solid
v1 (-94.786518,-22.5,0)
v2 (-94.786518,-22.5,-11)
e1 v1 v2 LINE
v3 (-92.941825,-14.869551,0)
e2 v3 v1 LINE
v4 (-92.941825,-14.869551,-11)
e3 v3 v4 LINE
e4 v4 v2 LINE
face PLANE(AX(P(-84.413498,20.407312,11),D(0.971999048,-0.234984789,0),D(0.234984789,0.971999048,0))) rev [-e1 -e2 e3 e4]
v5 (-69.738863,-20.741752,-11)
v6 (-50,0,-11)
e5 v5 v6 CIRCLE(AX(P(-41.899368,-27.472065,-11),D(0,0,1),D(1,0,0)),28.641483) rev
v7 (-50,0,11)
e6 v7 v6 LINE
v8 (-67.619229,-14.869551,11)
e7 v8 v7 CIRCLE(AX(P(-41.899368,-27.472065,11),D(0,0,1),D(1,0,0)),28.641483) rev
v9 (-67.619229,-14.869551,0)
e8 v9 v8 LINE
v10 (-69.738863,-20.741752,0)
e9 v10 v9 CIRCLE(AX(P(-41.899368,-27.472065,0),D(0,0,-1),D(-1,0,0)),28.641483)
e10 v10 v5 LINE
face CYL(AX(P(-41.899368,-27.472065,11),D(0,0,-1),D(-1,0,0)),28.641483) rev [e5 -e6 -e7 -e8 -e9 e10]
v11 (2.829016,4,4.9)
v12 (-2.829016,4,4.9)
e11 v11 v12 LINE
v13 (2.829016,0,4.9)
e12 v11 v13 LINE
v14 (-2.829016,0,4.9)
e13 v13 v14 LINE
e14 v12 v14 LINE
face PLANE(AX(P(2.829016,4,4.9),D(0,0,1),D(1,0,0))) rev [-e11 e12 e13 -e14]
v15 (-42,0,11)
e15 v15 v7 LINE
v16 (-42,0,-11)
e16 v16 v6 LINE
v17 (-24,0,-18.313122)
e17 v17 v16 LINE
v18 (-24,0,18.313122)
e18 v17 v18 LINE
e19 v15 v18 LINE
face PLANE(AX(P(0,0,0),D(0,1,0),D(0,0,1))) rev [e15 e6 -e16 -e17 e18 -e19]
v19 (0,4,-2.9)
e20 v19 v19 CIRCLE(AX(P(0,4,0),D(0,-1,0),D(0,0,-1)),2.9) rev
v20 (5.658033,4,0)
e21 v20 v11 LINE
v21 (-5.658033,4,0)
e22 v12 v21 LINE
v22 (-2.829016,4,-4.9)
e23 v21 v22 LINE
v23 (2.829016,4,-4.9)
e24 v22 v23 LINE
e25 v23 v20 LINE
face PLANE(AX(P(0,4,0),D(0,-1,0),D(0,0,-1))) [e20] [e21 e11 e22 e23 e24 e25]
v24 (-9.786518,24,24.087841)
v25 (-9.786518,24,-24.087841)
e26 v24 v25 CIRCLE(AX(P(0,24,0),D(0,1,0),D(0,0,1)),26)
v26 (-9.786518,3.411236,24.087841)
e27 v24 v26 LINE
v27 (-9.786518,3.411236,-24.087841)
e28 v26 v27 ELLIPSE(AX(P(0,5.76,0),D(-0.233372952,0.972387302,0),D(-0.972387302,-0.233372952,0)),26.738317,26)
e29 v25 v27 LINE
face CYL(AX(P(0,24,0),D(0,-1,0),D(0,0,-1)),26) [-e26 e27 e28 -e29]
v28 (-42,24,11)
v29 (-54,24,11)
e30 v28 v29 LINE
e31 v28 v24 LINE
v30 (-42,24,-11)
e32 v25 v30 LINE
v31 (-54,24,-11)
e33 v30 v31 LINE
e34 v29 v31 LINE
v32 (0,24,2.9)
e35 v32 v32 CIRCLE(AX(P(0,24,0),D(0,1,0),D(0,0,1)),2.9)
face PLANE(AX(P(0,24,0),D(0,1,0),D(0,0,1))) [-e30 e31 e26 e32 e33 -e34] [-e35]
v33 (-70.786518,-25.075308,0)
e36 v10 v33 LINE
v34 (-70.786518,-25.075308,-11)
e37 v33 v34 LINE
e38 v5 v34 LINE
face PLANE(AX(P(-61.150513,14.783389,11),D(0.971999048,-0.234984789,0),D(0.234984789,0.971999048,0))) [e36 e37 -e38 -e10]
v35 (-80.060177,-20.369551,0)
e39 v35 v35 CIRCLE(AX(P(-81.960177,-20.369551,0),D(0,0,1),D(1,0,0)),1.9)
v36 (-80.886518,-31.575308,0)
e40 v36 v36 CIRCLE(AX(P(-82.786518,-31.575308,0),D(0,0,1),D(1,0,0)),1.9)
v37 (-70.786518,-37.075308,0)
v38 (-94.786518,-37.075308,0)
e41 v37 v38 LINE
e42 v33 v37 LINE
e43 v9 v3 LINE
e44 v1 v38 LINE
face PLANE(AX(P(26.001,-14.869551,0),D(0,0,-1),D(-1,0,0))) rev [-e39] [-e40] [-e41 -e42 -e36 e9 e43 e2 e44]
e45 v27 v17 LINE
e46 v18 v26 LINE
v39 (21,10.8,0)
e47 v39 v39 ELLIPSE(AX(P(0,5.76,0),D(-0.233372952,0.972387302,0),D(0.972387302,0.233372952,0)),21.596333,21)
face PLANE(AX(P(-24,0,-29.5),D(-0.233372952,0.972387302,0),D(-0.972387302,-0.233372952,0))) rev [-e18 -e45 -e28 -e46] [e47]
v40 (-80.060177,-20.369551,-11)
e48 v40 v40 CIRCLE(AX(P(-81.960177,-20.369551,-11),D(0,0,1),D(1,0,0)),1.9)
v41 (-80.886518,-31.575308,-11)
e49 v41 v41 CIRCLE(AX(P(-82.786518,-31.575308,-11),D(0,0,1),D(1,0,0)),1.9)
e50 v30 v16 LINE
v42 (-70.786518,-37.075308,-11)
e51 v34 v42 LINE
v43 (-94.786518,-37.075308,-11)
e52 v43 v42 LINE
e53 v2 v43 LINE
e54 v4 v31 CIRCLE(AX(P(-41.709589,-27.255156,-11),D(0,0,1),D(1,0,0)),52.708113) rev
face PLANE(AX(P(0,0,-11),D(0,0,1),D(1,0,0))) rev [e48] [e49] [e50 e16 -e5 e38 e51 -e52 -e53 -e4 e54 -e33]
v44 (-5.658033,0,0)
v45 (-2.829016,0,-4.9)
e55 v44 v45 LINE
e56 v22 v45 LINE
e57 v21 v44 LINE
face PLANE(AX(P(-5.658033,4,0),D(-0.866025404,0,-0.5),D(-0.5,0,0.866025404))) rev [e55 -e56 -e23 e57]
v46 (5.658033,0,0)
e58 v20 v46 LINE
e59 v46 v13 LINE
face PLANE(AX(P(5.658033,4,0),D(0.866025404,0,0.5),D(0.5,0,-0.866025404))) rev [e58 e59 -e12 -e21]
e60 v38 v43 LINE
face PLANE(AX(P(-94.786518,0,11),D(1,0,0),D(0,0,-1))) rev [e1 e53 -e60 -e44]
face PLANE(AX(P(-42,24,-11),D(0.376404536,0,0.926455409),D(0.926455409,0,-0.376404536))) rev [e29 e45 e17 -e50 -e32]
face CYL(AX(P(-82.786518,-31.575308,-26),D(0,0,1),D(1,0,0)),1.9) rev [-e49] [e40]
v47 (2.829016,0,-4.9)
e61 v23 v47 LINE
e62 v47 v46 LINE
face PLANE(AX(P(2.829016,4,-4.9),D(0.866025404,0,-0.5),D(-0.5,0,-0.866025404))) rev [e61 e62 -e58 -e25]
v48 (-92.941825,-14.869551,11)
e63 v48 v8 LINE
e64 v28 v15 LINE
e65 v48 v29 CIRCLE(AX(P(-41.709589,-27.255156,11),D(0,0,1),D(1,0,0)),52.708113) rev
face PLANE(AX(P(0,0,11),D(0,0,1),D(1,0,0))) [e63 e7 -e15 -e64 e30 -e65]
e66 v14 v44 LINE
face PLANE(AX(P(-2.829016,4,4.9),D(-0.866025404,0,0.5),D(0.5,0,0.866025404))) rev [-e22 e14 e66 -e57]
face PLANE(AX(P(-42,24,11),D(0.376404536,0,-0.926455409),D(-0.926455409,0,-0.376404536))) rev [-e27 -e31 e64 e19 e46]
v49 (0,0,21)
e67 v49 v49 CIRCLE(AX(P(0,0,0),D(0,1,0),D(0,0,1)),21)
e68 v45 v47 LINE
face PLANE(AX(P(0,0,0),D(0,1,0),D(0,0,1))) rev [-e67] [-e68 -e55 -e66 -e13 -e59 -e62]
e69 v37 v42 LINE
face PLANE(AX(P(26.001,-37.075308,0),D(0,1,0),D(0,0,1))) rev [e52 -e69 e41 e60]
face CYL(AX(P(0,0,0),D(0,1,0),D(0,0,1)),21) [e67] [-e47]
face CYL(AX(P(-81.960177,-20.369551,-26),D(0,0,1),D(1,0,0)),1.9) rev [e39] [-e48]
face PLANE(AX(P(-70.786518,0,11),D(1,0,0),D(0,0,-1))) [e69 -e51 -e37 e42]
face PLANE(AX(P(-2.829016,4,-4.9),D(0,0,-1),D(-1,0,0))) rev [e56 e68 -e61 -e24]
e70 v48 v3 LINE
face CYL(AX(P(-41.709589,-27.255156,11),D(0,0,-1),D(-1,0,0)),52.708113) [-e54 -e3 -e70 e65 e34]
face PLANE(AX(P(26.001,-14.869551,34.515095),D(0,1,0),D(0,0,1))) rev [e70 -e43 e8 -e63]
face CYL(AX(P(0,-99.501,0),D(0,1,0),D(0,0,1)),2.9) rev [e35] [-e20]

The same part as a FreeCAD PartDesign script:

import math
import FreeCAD as App
import Part
import Sketcher
Q = App.Units.Quantity


def add_polygon(sketch, points):
    """Adds a closed chain of lines whose ends are joined by coincident constraints."""
    first, n = sketch.GeometryCount, len(points)
    for a, b in zip(points, points[1:] + points[:1]):
        sketch.addGeometry(Part.LineSegment(App.Vector(*a, 0), App.Vector(*b, 0)), False)
    for i in range(n):
        sketch.addConstraint(Sketcher.Constraint("Coincident", first + i, 2, first + (i + 1) % n, 1))

doc = App.newDocument("Part")
body = doc.addObject("PartDesign::Body", "Body")

sketch1 = body.newObject("Sketcher::SketchObject", "Sketch")
sketch1.AttachmentSupport = (doc.getObject("XZ_Plane"), [""])
sketch1.MapMode = "FlatFace"
sketch1.addGeometry([
    Part.LineSegment(App.Vector(-9.786518, -24.087841, 0), App.Vector(-42, -11, 0)),
    Part.LineSegment(App.Vector(-42, -11, 0), App.Vector(-42, 11, 0)),
    Part.LineSegment(App.Vector(-42, 11, 0), App.Vector(-9.786518, 24.087841, 0)),
    Part.ArcOfCircle(Part.Circle(App.Vector(0, 0, 0), App.Vector(0, 0, 1), 26), math.radians(-112.111148), math.radians(112.111148)),
], False)
sketch1.addConstraint([
    Sketcher.Constraint("Coincident", 0, 2, 1, 1),
    Sketcher.Constraint("Coincident", 1, 2, 2, 1),
    Sketcher.Constraint("Tangent", 2, 2, 3, 2),
    Sketcher.Constraint("Tangent", 3, 1, 0, 1),
    Sketcher.Constraint("Vertical", 1),
    Sketcher.Constraint("Coincident", 3, 3, -1, 1),
    Sketcher.Constraint("Vertical", 2, 2, 3, 1),
    Sketcher.Constraint("Radius", 3, Q("26 mm")),
    Sketcher.Constraint("DistanceY", 1, 1, 1, 2, Q("22 mm")),
    Sketcher.Constraint("DistanceX", 0, 2, -1, 1, Q("42 mm")),
])
pad1 = body.newObject("PartDesign::Pad", "Pad")
pad1.Profile = sketch1
pad1.Length = 24
pad1.Reversed = True

sketch2 = body.newObject("Sketcher::SketchObject", "Sketch001")
sketch2.AttachmentSupport = (doc.getObject("XY_Plane"), [""])
sketch2.MapMode = "FlatFace"
add_polygon(sketch2, [(26, 12), (-24, 0), (26, 0)])
sketch2.addConstraint([
    Sketcher.Constraint("Horizontal", 1),
    Sketcher.Constraint("Vertical", 2),
    Sketcher.Constraint("PointOnObject", 0, 2, -1),
    Sketcher.Constraint("DistanceX", 1, 1, 1, 2, Q("50 mm")),
    Sketcher.Constraint("DistanceY", 2, 1, 2, 2, Q("12 mm")),
    Sketcher.Constraint("DistanceX", 0, 2, -1, 1, Q("24 mm")),
])
pocket1 = body.newObject("PartDesign::Pocket", "Pocket")
pocket1.Profile = sketch2
pocket1.Length = 59
pocket1.Midplane = True

sketch3 = body.newObject("Sketcher::SketchObject", "Sketch002")
sketch3.AttachmentSupport = (doc.getObject("XZ_Plane"), [""])
sketch3.MapMode = "FlatFace"
sketch3.AttachmentOffset = App.Placement(App.Vector(0, 0, -24), App.Rotation())
sketch3.addGeometry(Part.Circle(App.Vector(0, 0, 0), App.Vector(0, 0, 1), 21), False)
sketch3.addConstraint([
    Sketcher.Constraint("Coincident", 0, 3, -1, 1),
    Sketcher.Constraint("Diameter", 0, Q("42 mm")),
])
pad2 = body.newObject("PartDesign::Pad", "Pad001")
pad2.Profile = sketch3
pad2.Length = 24

sketch4 = body.newObject("Sketcher::SketchObject", "Sketch003")
sketch4.AttachmentSupport = (doc.getObject("XZ_Plane"), [""])
sketch4.MapMode = "FlatFace"
add_polygon(sketch4, [(2.829016, 4.9), (-2.829016, 4.9), (-5.658033, 0), (-2.829016, -4.9), (2.829016, -4.9), (5.658033, 0)])
sketch4.addConstraint([
    Sketcher.Constraint("Horizontal", 0),
    Sketcher.Constraint("Horizontal", 3),
    Sketcher.Constraint("Symmetric", 0, 2, 3, 2, -1, 1),
    Sketcher.Constraint("Symmetric", 1, 2, 4, 2, -1, 1),
    Sketcher.Constraint("PointOnObject", 1, 2, -1),
    Sketcher.Constraint("Parallel", 2, 5),
    Sketcher.Constraint("Vertical", 0, 2, 2, 2),
    Sketcher.Constraint("Angle", 1, Q("-120 deg")),
    Sketcher.Constraint("DistanceY", -1, 1, 0, 2, Q("4.9 mm")),
    Sketcher.Constraint("DistanceX", 0, 2, 0, 1, Q("5.658033 mm")),
])
pocket2 = body.newObject("PartDesign::Pocket", "Pocket001")
pocket2.Profile = sketch4
pocket2.Length = 4

sketch5 = body.newObject("Sketcher::SketchObject", "Sketch004")
sketch5.AttachmentSupport = (doc.getObject("XY_Plane"), [""])
sketch5.MapMode = "FlatFace"
sketch5.addGeometry([
    Part.ArcOfCircle(Part.Circle(App.Vector(-41.709589, -27.255156, 0), App.Vector(0, 0, 1), 52.708113), math.radians(103.484289), math.radians(166.409274)),
    Part.LineSegment(App.Vector(-92.941825, -14.869551, 0), App.Vector(-94.786518, -22.5, 0)),
    Part.LineSegment(App.Vector(-94.786518, -22.5, 0), App.Vector(-94.786518, -37.075308, 0)),
    Part.LineSegment(App.Vector(-94.786518, -37.075308, 0), App.Vector(-93.178015, -46.5, 0)),
    Part.LineSegment(App.Vector(-93.178015, -46.5, 0), App.Vector(-90, -56.5, 0)),
    Part.LineSegment(App.Vector(-90, -56.5, 0), App.Vector(-42, -56.5, 0)),
    Part.LineSegment(App.Vector(-42, -56.5, 0), App.Vector(-63.178015, -46.5, 0)),
    Part.LineSegment(App.Vector(-63.178015, -46.5, 0), App.Vector(-70.786518, -37.075308, 0)),
    Part.LineSegment(App.Vector(-70.786518, -37.075308, 0), App.Vector(-70.786518, -25.075308, 0)),
    Part.LineSegment(App.Vector(-70.786518, -25.075308, 0), App.Vector(-69.738863, -20.741752, 0)),
    Part.ArcOfCircle(Part.Circle(App.Vector(-41.899368, -27.472065, 0), App.Vector(0, 0, 1), 28.641483), math.radians(106.4291), math.radians(166.409274)),
    Part.LineSegment(App.Vector(-50, 0, 0), App.Vector(-42, 0, 0)),
    Part.LineSegment(App.Vector(-42, 0, 0), App.Vector(-42, 24, 0)),
    Part.LineSegment(App.Vector(-42, 24, 0), App.Vector(-54, 24, 0)),
], False)
sketch5.addConstraint([
    Sketcher.Constraint("Tangent", 0, 2, 1, 1),
    Sketcher.Constraint("Coincident", 1, 2, 2, 1),
    Sketcher.Constraint("Coincident", 2, 2, 3, 1),
    Sketcher.Constraint("Coincident", 3, 2, 4, 1),
    Sketcher.Constraint("Coincident", 4, 2, 5, 1),
    Sketcher.Constraint("Coincident", 5, 2, 6, 1),
    Sketcher.Constraint("Coincident", 6, 2, 7, 1),
    Sketcher.Constraint("Coincident", 7, 2, 8, 1),
    Sketcher.Constraint("Coincident", 8, 2, 9, 1),
    Sketcher.Constraint("Tangent", 9, 2, 10, 2),
    Sketcher.Constraint("Coincident", 10, 1, 11, 1),
    Sketcher.Constraint("Coincident", 11, 2, 12, 1),
    Sketcher.Constraint("Coincident", 12, 2, 13, 1),
    Sketcher.Constraint("Coincident", 13, 2, 0, 1),
    Sketcher.Constraint("Vertical", 2),
    Sketcher.Constraint("Horizontal", 5),
    Sketcher.Constraint("Vertical", 8),
    Sketcher.Constraint("Horizontal", 11),
    Sketcher.Constraint("Vertical", 12),
    Sketcher.Constraint("Horizontal", 13),
    Sketcher.Constraint("PointOnObject", 10, 1, -1),
    Sketcher.Constraint("Parallel", 1, 9),
    Sketcher.Constraint("Horizontal", 3, 2, 6, 2),
    Sketcher.Constraint("Horizontal", 2, 2, 7, 2),
    Sketcher.Constraint("Vertical", 5, 2, 11, 2),
    Sketcher.Constraint("Equal", 13, 8),
    Sketcher.Constraint("DistanceX", 5, 1, 5, 2, Q("48 mm")),
    Sketcher.Constraint("DistanceX", 11, 1, 11, 2, Q("8 mm")),
    Sketcher.Constraint("DistanceX", 13, 2, 13, 1, Q("12 mm")),
    Sketcher.Constraint("DistanceY", 12, 1, 12, 2, Q("24 mm")),
    Sketcher.Constraint("DistanceX", 4, 2, -1, 1, Q("90 mm")),
    Sketcher.Constraint("DistanceY", 3, 2, 1, 2, Q("24 mm")),
    Sketcher.Constraint("DistanceY", 4, 2, 3, 2, Q("10 mm")),
    Sketcher.Constraint("DistanceX", 3, 2, 6, 2, Q("30 mm")),
    Sketcher.Constraint("DistanceX", 2, 2, 7, 2, Q("24 mm")),
    Sketcher.Constraint("DistanceY", 1, 2, -1, 1, Q("22.5 mm")),
    Sketcher.Constraint("Radius", 0, Q("52.708113 mm")),
    Sketcher.Constraint("Radius", 10, Q("28.641483 mm")),
    Sketcher.Constraint("DistanceY", 9, 2, 0, 2, Q("5.872201 mm")),
    Sketcher.Constraint("Distance", 7, Q("12.112561 mm")),
    Sketcher.Constraint("DistanceY", 2, 2, 2, 1, Q("14.575308 mm")),
    Sketcher.Constraint("DistanceX", 0, 3, -1, 1, Q("41.709589 mm")),
])
pad3 = body.newObject("PartDesign::Pad", "Pad002")
pad3.Profile = sketch5
pad3.Length = 22
pad3.Midplane = True
body2 = doc.addObject("PartDesign::Body", "Body001")

sketch6 = body2.newObject("Sketcher::SketchObject", "Sketch005")
sketch6.AttachmentSupport = (doc.getObject("XY_Plane001"), [""])
sketch6.MapMode = "FlatFace"
add_polygon(sketch6, [(-98, -78), (-98, -99.5), (-9, -99.5), (-9, -78)])
sketch6.addGeometry(Part.LineSegment(App.Vector(-98, -78, 0), App.Vector(-9, -78, 0)), True)
sketch6.addConstraint([
    Sketcher.Constraint("Vertical", 0),
    Sketcher.Constraint("Horizontal", 1),
    Sketcher.Constraint("Vertical", 2),
    Sketcher.Constraint("Horizontal", 3),
    Sketcher.Constraint("Horizontal", 4),
    Sketcher.Constraint("Coincident", 4, 1, 3, 2),
    Sketcher.Constraint("Vertical", 1, 2, 4, 2),
    Sketcher.Constraint("DistanceX", 1, 1, 1, 2, Q("89 mm")),
    Sketcher.Constraint("DistanceY", 0, 2, 0, 1, Q("21.5 mm")),
    Sketcher.Constraint("DistanceX", 0, 2, -1, 1, Q("98 mm")),
    Sketcher.Constraint("DistanceY", 2, 2, -1, 1, Q("78 mm")),
])
revolution = body2.newObject("PartDesign::Revolution", "Revolution")
revolution.Profile = sketch6
revolution.ReferenceAxis = (sketch6, ["Axis0"])
revolution.Angle = 360
body.AllowCompound = True
doc.recompute()

boolean = body.newObject("PartDesign::Boolean", "Boolean")
boolean.Type = "Fuse"
boolean.addObjects([body2])

sketch7 = body.newObject("Sketcher::SketchObject", "Sketch006")
sketch7.AttachmentSupport = (doc.getObject("XZ_Plane"), [""])
sketch7.MapMode = "FlatFace"
sketch7.AttachmentOffset = App.Placement(App.Vector(0, 0, 56.5), App.Rotation())
add_polygon(sketch7, [(-90, 11), (-90, -11), (-42, -11), (-42, 11)])
sketch7.addConstraint([
    Sketcher.Constraint("Vertical", 0),
    Sketcher.Constraint("Horizontal", 1),
    Sketcher.Constraint("Vertical", 2),
    Sketcher.Constraint("Horizontal", 3),
    Sketcher.Constraint("DistanceX", 1, 1, 1, 2, Q("48 mm")),
    Sketcher.Constraint("DistanceY", 0, 2, 0, 1, Q("22 mm")),
    Sketcher.Constraint("DistanceX", 0, 2, -1, 1, Q("90 mm")),
    Sketcher.Constraint("DistanceY", 0, 2, -1, 1, Q("11 mm")),
])
pad4 = body.newObject("PartDesign::Pad", "Pad003")
pad4.Profile = sketch7
pad4.Length = 3.027047

sketch8 = body.newObject("Sketcher::SketchObject", "Sketch007")
sketch8.AttachmentSupport = (doc.getObject("YZ_Plane"), [""])
sketch8.MapMode = "FlatFace"
sketch8.AttachmentOffset = App.Placement(App.Vector(0, 0, -98), App.Rotation())
sketch8.addGeometry(Part.Circle(App.Vector(-78, 0, 0), App.Vector(0, 0, 1), 18.5), False)
sketch8.addConstraint([
    Sketcher.Constraint("PointOnObject", 0, 3, -1),
    Sketcher.Constraint("Diameter", 0, Q("37 mm")),
    Sketcher.Constraint("DistanceX", 0, 3, -1, 1, Q("78 mm")),
])
pocket3 = body.newObject("PartDesign::Pocket", "Pocket002")
pocket3.Profile = sketch8
pocket3.Length = 83
pocket3.Reversed = True

sketch9 = body.newObject("Sketcher::SketchObject", "Sketch008")
sketch9.AttachmentSupport = (doc.getObject("YZ_Plane"), [""])
sketch9.MapMode = "FlatFace"
sketch9.AttachmentOffset = App.Placement(App.Vector(0, 0, -9), App.Rotation())
sketch9.addGeometry(Part.Circle(App.Vector(-78, -15.5, 0), App.Vector(0, 0, 1), 1.6), False)
sketch9.addConstraint([
    Sketcher.Constraint("Diameter", 0, Q("3.2 mm")),
    Sketcher.Constraint("DistanceX", 0, 3, -1, 1, Q("78 mm")),
    Sketcher.Constraint("DistanceY", 0, 3, -1, 1, Q("15.5 mm")),
])
pocket4 = body.newObject("PartDesign::Pocket", "Pocket003")
pocket4.Profile = sketch9
pocket4.Type = "UpToFirst"

sketch10 = body.newObject("Sketcher::SketchObject", "Sketch009")
sketch10.AttachmentSupport = (doc.getObject("YZ_Plane"), [""])
sketch10.MapMode = "FlatFace"
sketch10.AttachmentOffset = App.Placement(App.Vector(0, 0, -9), App.Rotation())
sketch10.addGeometry(Part.Circle(App.Vector(-91.423394, -7.75, 0), App.Vector(0, 0, 1), 1.6), False)
sketch10.addConstraint([
    Sketcher.Constraint("Diameter", 0, Q("3.2 mm")),
    Sketcher.Constraint("DistanceY", 0, 3, -1, 1, Q("7.75 mm")),
    Sketcher.Constraint("DistanceX", 0, 3, -1, 1, Q("91.423394 mm")),
])
pocket5 = body.newObject("PartDesign::Pocket", "Pocket004")
pocket5.Profile = sketch10
pocket5.Type = "UpToFirst"

sketch11 = body.newObject("Sketcher::SketchObject", "Sketch010")
sketch11.AttachmentSupport = (doc.getObject("YZ_Plane"), [""])
sketch11.MapMode = "FlatFace"
sketch11.AttachmentOffset = App.Placement(App.Vector(0, 0, -9), App.Rotation())
sketch11.addGeometry(Part.Circle(App.Vector(-91.423394, 7.75, 0), App.Vector(0, 0, 1), 1.6), False)
sketch11.addConstraint([
    Sketcher.Constraint("Diameter", 0, Q("3.2 mm")),
    Sketcher.Constraint("DistanceY", -1, 1, 0, 3, Q("7.75 mm")),
    Sketcher.Constraint("DistanceX", 0, 3, -1, 1, Q("91.423394 mm")),
])
pocket6 = body.newObject("PartDesign::Pocket", "Pocket005")
pocket6.Profile = sketch11
pocket6.Type = "UpToFirst"

sketch12 = body.newObject("Sketcher::SketchObject", "Sketch011")
sketch12.AttachmentSupport = (doc.getObject("YZ_Plane"), [""])
sketch12.MapMode = "FlatFace"
sketch12.AttachmentOffset = App.Placement(App.Vector(0, 0, -9), App.Rotation())
sketch12.addGeometry(Part.Circle(App.Vector(-78, 15.5, 0), App.Vector(0, 0, 1), 1.6), False)
sketch12.addConstraint([
    Sketcher.Constraint("Diameter", 0, Q("3.2 mm")),
    Sketcher.Constraint("DistanceX", 0, 3, -1, 1, Q("78 mm")),
    Sketcher.Constraint("DistanceY", -1, 1, 0, 3, Q("15.5 mm")),
])
pocket7 = body.newObject("PartDesign::Pocket", "Pocket006")
pocket7.Profile = sketch12
pocket7.Type = "UpToFirst"

sketch13 = body.newObject("Sketcher::SketchObject", "Sketch012")
sketch13.AttachmentSupport = (doc.getObject("YZ_Plane"), [""])
sketch13.MapMode = "FlatFace"
sketch13.AttachmentOffset = App.Placement(App.Vector(0, 0, -9), App.Rotation())
sketch13.addGeometry(Part.Circle(App.Vector(-64.576606, 7.75, 0), App.Vector(0, 0, 1), 1.6), False)
sketch13.addConstraint([
    Sketcher.Constraint("Diameter", 0, Q("3.2 mm")),
    Sketcher.Constraint("DistanceY", -1, 1, 0, 3, Q("7.75 mm")),
    Sketcher.Constraint("DistanceX", 0, 3, -1, 1, Q("64.576606 mm")),
])
pocket8 = body.newObject("PartDesign::Pocket", "Pocket007")
pocket8.Profile = sketch13
pocket8.Type = "UpToFirst"

sketch14 = body.newObject("Sketcher::SketchObject", "Sketch013")
sketch14.AttachmentSupport = (doc.getObject("YZ_Plane"), [""])
sketch14.MapMode = "FlatFace"
sketch14.AttachmentOffset = App.Placement(App.Vector(0, 0, -9), App.Rotation())
sketch14.addGeometry(Part.Circle(App.Vector(-64.576606, -7.75, 0), App.Vector(0, 0, 1), 1.6), False)
sketch14.addConstraint([
    Sketcher.Constraint("Diameter", 0, Q("3.2 mm")),
    Sketcher.Constraint("DistanceY", 0, 3, -1, 1, Q("7.75 mm")),
    Sketcher.Constraint("DistanceX", 0, 3, -1, 1, Q("64.576606 mm")),
])
pocket9 = body.newObject("PartDesign::Pocket", "Pocket008")
pocket9.Profile = sketch14
pocket9.Type = "UpToFirst"

sketch15 = body.newObject("Sketcher::SketchObject", "Sketch014")
sketch15.AttachmentSupport = (doc.getObject("YZ_Plane"), [""])
sketch15.MapMode = "FlatFace"
sketch15.AttachmentOffset = App.Placement(App.Vector(0, 0, -9), App.Rotation())
sketch15.addGeometry(Part.Circle(App.Vector(-85, 0, 0), App.Vector(0, 0, 1), 6.1), False)
sketch15.addConstraint([
    Sketcher.Constraint("PointOnObject", 0, 3, -1),
    Sketcher.Constraint("Diameter", 0, Q("12.2 mm")),
    Sketcher.Constraint("DistanceX", 0, 3, -1, 1, Q("85 mm")),
])
pocket10 = body.newObject("PartDesign::Pocket", "Pocket009")
pocket10.Profile = sketch15
pocket10.Type = "UpToFirst"

sketch16 = body.newObject("Sketcher::SketchObject", "Sketch015")
sketch16.AttachmentSupport = (doc.getObject("XZ_Plane"), [""])
sketch16.MapMode = "FlatFace"
sketch16.AttachmentOffset = App.Placement(App.Vector(0, 0, -24), App.Rotation())
sketch16.addGeometry(Part.Circle(App.Vector(0, 0, 0), App.Vector(0, 0, 1), 2.9), False)
sketch16.addConstraint([
    Sketcher.Constraint("Coincident", 0, 3, -1, 1),
    Sketcher.Constraint("Diameter", 0, Q("5.8 mm")),
])
pocket11 = body.newObject("PartDesign::Pocket", "Pocket010")
pocket11.Profile = sketch16
pocket11.Type = "UpToFirst"
pocket11.Reversed = True

sketch17 = body.newObject("Sketcher::SketchObject", "Sketch016")
sketch17.AttachmentSupport = (doc.getObject("YZ_Plane"), [""])
sketch17.MapMode = "FlatFace"
sketch17.AttachmentOffset = App.Placement(App.Vector(0, 0, -108), App.Rotation())
add_polygon(sketch17, [(-14.869551, 0), (-37.075308, 0), (-37.075308, -35.009935), (-113.33455, -35.009935), (-113.33455, 34.515095), (-14.869551, 34.515095)])
sketch17.addConstraint([
    Sketcher.Constraint("Horizontal", 0),
    Sketcher.Constraint("Vertical", 1),
    Sketcher.Constraint("Horizontal", 2),
    Sketcher.Constraint("Vertical", 3),
    Sketcher.Constraint("Horizontal", 4),
    Sketcher.Constraint("Vertical", 5),
    Sketcher.Constraint("PointOnObject", 0, 2, -1),
    Sketcher.Constraint("DistanceX", 4, 1, 4, 2, Q("98.464999 mm")),
    Sketcher.Constraint("DistanceY", 3, 1, 3, 2, Q("69.52503 mm")),
    Sketcher.Constraint("DistanceX", 0, 2, 0, 1, Q("22.205757 mm")),
    Sketcher.Constraint("DistanceY", 1, 2, 1, 1, Q("35.009935 mm")),
    Sketcher.Constraint("DistanceX", 2, 2, -1, 1, Q("113.33455 mm")),
])
pocket12 = body.newObject("PartDesign::Pocket", "Pocket011")
pocket12.Profile = sketch17
pocket12.Length = 99
pocket12.Reversed = True

sketch18 = body.newObject("Sketcher::SketchObject", "Sketch017")
sketch18.AttachmentSupport = (doc.getObject("XY_Plane"), [""])
sketch18.MapMode = "FlatFace"
sketch18.addGeometry([
    Part.Circle(App.Vector(-81.960177, -20.369551, 0), App.Vector(0, 0, 1), 1.9),
    Part.Circle(App.Vector(-82.786518, -31.575308, 0), App.Vector(0, 0, 1), 1.9),
], False)
sketch18.addConstraint([
    Sketcher.Constraint("Equal", 0, 1),
    Sketcher.Constraint("Diameter", 0, Q("3.8 mm")),
    Sketcher.Constraint("DistanceY", 0, 3, -1, 1, Q("20.369551 mm")),
    Sketcher.Constraint("DistanceX", 1, 3, 0, 3, Q("0.82634 mm")),
    Sketcher.Constraint("DistanceX", 0, 3, -1, 1, Q("81.960177 mm")),
    Sketcher.Constraint("DistanceY", 1, 3, -1, 1, Q("31.575308 mm")),
])
pocket13 = body.newObject("PartDesign::Pocket", "Pocket012")
pocket13.Profile = sketch18
pocket13.Type = "ThroughAll"

doc.recompute()
